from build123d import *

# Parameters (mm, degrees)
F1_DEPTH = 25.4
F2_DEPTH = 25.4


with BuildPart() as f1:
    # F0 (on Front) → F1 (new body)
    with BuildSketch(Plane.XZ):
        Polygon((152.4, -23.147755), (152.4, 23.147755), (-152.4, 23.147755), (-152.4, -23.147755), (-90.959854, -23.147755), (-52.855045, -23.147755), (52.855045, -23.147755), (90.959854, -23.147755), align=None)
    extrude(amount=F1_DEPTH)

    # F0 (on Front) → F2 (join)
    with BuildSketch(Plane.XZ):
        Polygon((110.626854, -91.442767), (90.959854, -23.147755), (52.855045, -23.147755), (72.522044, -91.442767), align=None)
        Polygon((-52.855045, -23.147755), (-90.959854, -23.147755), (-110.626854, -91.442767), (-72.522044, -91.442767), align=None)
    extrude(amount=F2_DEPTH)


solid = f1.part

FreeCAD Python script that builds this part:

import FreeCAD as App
import Part
import Sketcher
Q = App.Units.Quantity

doc = App.newDocument("Part")
body = doc.addObject("PartDesign::Body", "Body")

sketch1 = doc.addObject("Sketcher::SketchObject", "Sketch")
body.addObject(sketch1)
sketch1.AttachmentSupport = (doc.XZ_Plane, [""])
sketch1.MapMode = "FlatFace"
sketch1.addGeometry(Part.LineSegment(App.Vector(152, -23, 0), App.Vector(152, 23, 0)), False)
sketch1.addGeometry(Part.LineSegment(App.Vector(152, 23, 0), App.Vector(-152, 23, 0)), False)
sketch1.addGeometry(Part.LineSegment(App.Vector(-152, 23, 0), App.Vector(-152, -23, 0)), False)
sketch1.addGeometry(Part.LineSegment(App.Vector(-152, -23, 0), App.Vector(152, -23, 0)), False)
sketch1.addConstraint(Sketcher.Constraint("Coincident", 0, 2, 1, 1))
sketch1.addConstraint(Sketcher.Constraint("Coincident", 1, 2, 2, 1))
sketch1.addConstraint(Sketcher.Constraint("Coincident", 2, 2, 3, 1))
sketch1.addConstraint(Sketcher.Constraint("Coincident", 3, 2, 0, 1))
sketch1.addConstraint(Sketcher.Constraint("Vertical", 0))
sketch1.addConstraint(Sketcher.Constraint("Horizontal", 1))
sketch1.addConstraint(Sketcher.Constraint("Vertical", 2))
sketch1.addConstraint(Sketcher.Constraint("Horizontal", 3))
sketch1.addConstraint(Sketcher.Constraint("Symmetric", 0, 2, 2, 2, -1, 1))
sketch1.addConstraint(Sketcher.Constraint("DistanceX", 1, 2, 1, 1, Q("12 in")))
sketch1.addConstraint(Sketcher.Constraint("DistanceY", 0, 1, 0, 2, Q("46.29551 mm")))
pad1 = doc.addObject("PartDesign::Pad", "Pad")
body.addObject(pad1)
pad1.Profile = sketch1
pad1.Length = Q("1 in")

sketch2 = doc.addObject("Sketcher::SketchObject", "Sketch001")
body.addObject(sketch2)
sketch2.AttachmentSupport = (doc.XZ_Plane, [""])
sketch2.MapMode = "FlatFace"
sketch2.addGeometry(Part.LineSegment(App.Vector(111, -91, 0), App.Vector(91, -23, 0)), False)
sketch2.addGeometry(Part.LineSegment(App.Vector(91, -23, 0), App.Vector(53, -23, 0)), False)
sketch2.addGeometry(Part.LineSegment(App.Vector(53, -23, 0), App.Vector(73, -91, 0)), False)
sketch2.addGeometry(Part.LineSegment(App.Vector(73, -91, 0), App.Vector(111, -91, 0)), False)
sketch2.addGeometry(Part.LineSegment(App.Vector(-53, -23, 0), App.Vector(-91, -23, 0)), False)
sketch2.addGeometry(Part.LineSegment(App.Vector(-91, -23, 0), App.Vector(-111, -91, 0)), False)
sketch2.addGeometry(Part.LineSegment(App.Vector(-111, -91, 0), App.Vector(-73, -91, 0)), False)
sketch2.addGeometry(Part.LineSegment(App.Vector(-73, -91, 0), App.Vector(-53, -23, 0)), False)
sketch2.addConstraint(Sketcher.Constraint("Coincident", 0, 2, 1, 1))
sketch2.addConstraint(Sketcher.Constraint("Coincident", 1, 2, 2, 1))
sketch2.addConstraint(Sketcher.Constraint("Coincident", 2, 2, 3, 1))
sketch2.addConstraint(Sketcher.Constraint("Coincident", 3, 2, 0, 1))
sketch2.addConstraint(Sketcher.Constraint("Coincident", 4, 2, 5, 1))
sketch2.addConstraint(Sketcher.Constraint("Coincident", 5, 2, 6, 1))
sketch2.addConstraint(Sketcher.Constraint("Coincident", 6, 2, 7, 1))
sketch2.addConstraint(Sketcher.Constraint("Coincident", 7, 2, 4, 1))
sketch2.addConstraint(Sketcher.Constraint("Horizontal", 1))
sketch2.addConstraint(Sketcher.Constraint("Horizontal", 3))
sketch2.addConstraint(Sketcher.Constraint("Horizontal", 4))
sketch2.addConstraint(Sketcher.Constraint("Horizontal", 6))
sketch2.addConstraint(Sketcher.Constraint("Symmetric", 0, 2, 4, 2, -2))
sketch2.addConstraint(Sketcher.Constraint("Symmetric", 3, 2, 5, 2, -2))
sketch2.addConstraint(Sketcher.Constraint("Parallel", 0, 2))
sketch2.addConstraint(Sketcher.Constraint("Parallel", 5, 7))
sketch2.addConstraint(Sketcher.Constraint("Equal", 3, 4))
sketch2.addConstraint(Sketcher.Constraint("DistanceX", 1, 2, 1, 1, Q("38.104809 mm")))
sketch2.addConstraint(Sketcher.Constraint("DistanceX", 1, 2, 2, 2, Q("19.666999 mm")))
sketch2.addConstraint(Sketcher.Constraint("DistanceX", 4, 2, 1, 2, Q("143.814899 mm")))
sketch2.addConstraint(Sketcher.Constraint("DistanceY", 2, 2, 0, 2, Q("68.295012 mm")))
sketch2.addConstraint(Sketcher.Constraint("DistanceY", 0, 2, -1, 1, Q("23.147755 mm")))
pad2 = doc.addObject("PartDesign::Pad", "Pad001")
body.addObject(pad2)
pad2.Profile = sketch2
pad2.Length = Q("1 in")

doc.recompute()
